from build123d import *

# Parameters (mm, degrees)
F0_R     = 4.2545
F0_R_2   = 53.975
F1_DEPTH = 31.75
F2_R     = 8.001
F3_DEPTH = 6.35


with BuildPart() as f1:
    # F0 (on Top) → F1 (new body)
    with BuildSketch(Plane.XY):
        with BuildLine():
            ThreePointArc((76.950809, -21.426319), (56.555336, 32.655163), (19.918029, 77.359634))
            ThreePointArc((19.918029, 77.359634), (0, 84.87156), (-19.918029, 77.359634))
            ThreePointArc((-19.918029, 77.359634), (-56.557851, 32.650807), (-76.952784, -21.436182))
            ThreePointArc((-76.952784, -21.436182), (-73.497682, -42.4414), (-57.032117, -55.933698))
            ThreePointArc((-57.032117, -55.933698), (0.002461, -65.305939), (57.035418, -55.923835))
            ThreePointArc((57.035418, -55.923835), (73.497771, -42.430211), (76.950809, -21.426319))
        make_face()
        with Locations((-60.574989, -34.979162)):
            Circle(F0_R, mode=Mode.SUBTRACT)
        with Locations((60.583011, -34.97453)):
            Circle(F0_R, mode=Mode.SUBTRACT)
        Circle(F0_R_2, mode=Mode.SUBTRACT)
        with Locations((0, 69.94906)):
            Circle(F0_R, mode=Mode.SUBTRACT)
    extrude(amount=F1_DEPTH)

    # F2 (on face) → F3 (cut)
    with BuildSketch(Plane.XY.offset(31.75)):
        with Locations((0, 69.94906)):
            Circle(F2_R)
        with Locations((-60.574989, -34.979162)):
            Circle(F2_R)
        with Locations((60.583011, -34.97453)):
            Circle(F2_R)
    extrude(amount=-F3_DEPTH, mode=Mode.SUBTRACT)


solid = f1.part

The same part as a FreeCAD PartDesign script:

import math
import FreeCAD as App
import Part
import Sketcher
Q = App.Units.Quantity

doc = App.newDocument("Part")
body = doc.addObject("PartDesign::Body", "Body")

# Sketch on XY plane
sketch1 = body.newObject("Sketcher::SketchObject", "Sketch")
sketch1.AttachmentSupport = (doc.getObject("XY_Plane"), [""])
sketch1.MapMode = "FlatFace"
sketch1.addGeometry([
    Part.ArcOfCircle(Part.Circle(App.Vector(-97.713905, -56.410169, 0), App.Vector(0, 0, 1), 178.133748), math.radians(11.325989), math.radians(48.672866)),  # 0
    Part.ArcOfCircle(Part.Circle(App.Vector(0, 54.709062, 0), App.Vector(0, 0, 1), 30.162498), math.radians(48.672864), math.radians(131.327136)),  # 1
    Part.ArcOfCircle(Part.Circle(App.Vector(97.713901, -56.410166, 0), App.Vector(0, 0, 1), 178.133743), math.radians(131.327133), math.radians(168.677247)),  # 2
    Part.ArcOfCircle(Part.Circle(App.Vector(-47.377344, -27.358153, 0), App.Vector(0, 0, 1), 30.1625), math.radians(168.677247), math.radians(251.331514)),  # 3
    Part.ArcOfCircle(Part.Circle(App.Vector(-0.012941, 112.827821, 0), App.Vector(0, 0, 1), 178.133761), math.radians(-108.668483), math.radians(-71.321608)),  # 4
    Part.ArcOfCircle(Part.Circle(App.Vector(47.375702, -27.34996, 0), App.Vector(0, 0, 1), 30.162501), math.radians(-71.321605), math.radians(11.325987)),  # 5
    Part.Circle(App.Vector(-60.574989, -34.979162, 0), App.Vector(0, 0, 1), 4.2545),  # 6
    Part.Circle(App.Vector(0, 0, 0), App.Vector(0, 0, 1), 53.975),  # 7
    Part.Circle(App.Vector(60.583011, -34.97453, 0), App.Vector(0, 0, 1), 4.2545),  # 8
    Part.Circle(App.Vector(0, 69.94906, 0), App.Vector(0, 0, 1), 4.2545),  # 9
], False)
sketch1.addConstraint([
    Sketcher.Constraint("Coincident", 0, 2, 1, 1),
    Sketcher.Constraint("Coincident", 1, 2, 2, 1),
    Sketcher.Constraint("Coincident", 2, 2, 3, 1),
    Sketcher.Constraint("Coincident", 3, 2, 4, 1),
    Sketcher.Constraint("Coincident", 4, 2, 5, 1),
    Sketcher.Constraint("Coincident", 5, 2, 0, 1),
    Sketcher.Constraint("Coincident", 7, 3, -1, 1),
    Sketcher.Constraint("PointOnObject", 1, 3, -2),
    Sketcher.Constraint("PointOnObject", 9, 3, -2),
    Sketcher.Constraint("Diameter", 7, Q("4.25 in")),
    Sketcher.Constraint("Diameter", 6, Q("0.335 in")),
    Sketcher.Constraint("Diameter", 8, Q("0.335 in")),
    Sketcher.Constraint("Diameter", 9, Q("0.335 in")),
    Sketcher.Constraint("Radius", 1, Q("1.1874999 in")),
    Sketcher.Constraint("Radius", 3, Q("1.1875 in")),
    Sketcher.Constraint("Radius", 5, Q("1.1875 in")),
    Sketcher.Constraint("DistanceY", 1, 3, 9, 3, Q("0.5999999 in")),
    Sketcher.Constraint("Radius", 4, 178.133761),
    Sketcher.Constraint("DistanceY", -1, 1, 1, 3, Q("2.1539001 in")),
    Sketcher.Constraint("Radius", 0, 178.133748),
    Sketcher.Constraint("Radius", 2, 178.133743),
    Sketcher.Constraint("DistanceX", -1, 1, 2, 3, 97.713901),
    Sketcher.Constraint("DistanceY", 3, 2, -1, 1, 55.933698),
    Sketcher.Constraint("DistanceX", 5, 3, 2, 3, 50.338199),
    Sketcher.Constraint("DistanceY", 0, 3, -1, 1, 56.410169),
    Sketcher.Constraint("DistanceX", 4, 3, -1, 1, 0.012941),
    Sketcher.Constraint("DistanceX", 6, 3, -1, 1, 60.574989),
    Sketcher.Constraint("DistanceX", -1, 1, 8, 3, 60.583011),
    Sketcher.Constraint("DistanceY", 8, 3, -1, 1, 34.97453),
    Sketcher.Constraint("DistanceX", -1, 1, 0, 2, 19.918029),
    Sketcher.Constraint("DistanceX", 1, 2, -1, 1, 19.918029),
    Sketcher.Constraint("DistanceX", -1, 1, 4, 2, 57.035418),
    Sketcher.Constraint("DistanceX", -1, 1, 5, 2, 76.950809),
    Sketcher.Constraint("DistanceY", 6, 3, 3, 3, 7.621009),
    Sketcher.Constraint("DistanceY", 6, 3, 2, 2, 13.54298),
])
pad1 = body.newObject("PartDesign::Pad", "Pad")
pad1.Profile = sketch1
pad1.Length = Q("1.25 in")

# Sketch on XY plane
sketch2 = body.newObject("Sketcher::SketchObject", "Sketch001")
sketch2.AttachmentSupport = (doc.getObject("XY_Plane"), [""])
sketch2.MapMode = "FlatFace"
sketch2.AttachmentOffset = App.Placement(App.Vector(0, 0, 1.25 * 25.4), App.Rotation())
sketch2.addGeometry([
    Part.Circle(App.Vector(0, 69.94906, 0), App.Vector(0, 0, 1), 8.001),
    Part.Circle(App.Vector(-60.574989, -34.979162, 0), App.Vector(0, 0, 1), 8.001),
    Part.Circle(App.Vector(60.583011, -34.97453, 0), App.Vector(0, 0, 1), 8.001),
], False)
sketch2.addConstraint([
    Sketcher.Constraint("Equal", 0, 1),
    Sketcher.Constraint("Equal", 1, 2),
    Sketcher.Constraint("PointOnObject", 0, 3, -2),
    Sketcher.Constraint("Diameter", 0, Q("0.63 in")),
    Sketcher.Constraint("DistanceX", 1, 3, 2, 3, Q("4.77 in")),
    Sketcher.Constraint("DistanceY", -1, 1, 0, 3, Q("2.7539 in")),
    Sketcher.Constraint("DistanceX", 1, 3, -1, 1, 60.574989),
    Sketcher.Constraint("DistanceY", 2, 3, -1, 1, 34.97453),
    Sketcher.Constraint("DistanceY", 1, 3, -1, 1, 34.979162),
])
pocket1 = body.newObject("PartDesign::Pocket", "Pocket")
pocket1.Profile = sketch2
pocket1.Length = Q("0.25 in")

doc.recompute()
